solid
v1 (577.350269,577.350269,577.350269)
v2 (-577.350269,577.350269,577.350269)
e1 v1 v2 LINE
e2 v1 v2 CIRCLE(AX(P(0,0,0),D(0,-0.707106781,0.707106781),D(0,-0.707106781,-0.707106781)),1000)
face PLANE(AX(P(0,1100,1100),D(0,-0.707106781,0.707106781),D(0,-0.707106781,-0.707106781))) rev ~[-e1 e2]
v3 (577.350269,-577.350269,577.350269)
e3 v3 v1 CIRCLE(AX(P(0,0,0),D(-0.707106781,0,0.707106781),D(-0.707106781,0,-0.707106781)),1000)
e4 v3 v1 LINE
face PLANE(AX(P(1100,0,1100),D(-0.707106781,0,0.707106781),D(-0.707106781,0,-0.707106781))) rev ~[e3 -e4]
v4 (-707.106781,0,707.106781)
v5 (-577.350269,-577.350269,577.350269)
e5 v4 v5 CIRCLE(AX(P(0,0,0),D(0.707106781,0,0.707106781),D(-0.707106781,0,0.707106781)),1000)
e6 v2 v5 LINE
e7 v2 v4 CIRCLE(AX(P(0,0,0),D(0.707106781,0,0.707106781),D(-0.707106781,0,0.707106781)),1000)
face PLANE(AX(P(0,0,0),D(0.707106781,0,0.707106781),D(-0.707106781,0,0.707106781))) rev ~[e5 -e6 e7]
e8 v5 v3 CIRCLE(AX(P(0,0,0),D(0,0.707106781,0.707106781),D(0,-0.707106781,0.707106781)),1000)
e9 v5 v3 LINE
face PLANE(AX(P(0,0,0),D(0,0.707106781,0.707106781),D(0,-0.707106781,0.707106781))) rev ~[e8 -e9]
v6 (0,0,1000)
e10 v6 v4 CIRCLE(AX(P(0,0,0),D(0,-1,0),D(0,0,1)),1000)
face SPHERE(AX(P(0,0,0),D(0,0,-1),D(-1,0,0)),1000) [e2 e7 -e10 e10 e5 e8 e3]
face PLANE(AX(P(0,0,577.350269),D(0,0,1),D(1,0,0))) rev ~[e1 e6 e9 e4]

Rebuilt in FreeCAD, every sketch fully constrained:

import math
import FreeCAD as App
import Part
import Sketcher
from FreeCAD import Vector
Q = App.Units.Quantity


def add_polygon(sketch, points):
    """Adds a closed chain of lines whose ends are joined by coincident constraints."""
    first, n = sketch.GeometryCount, len(points)
    for a, b in zip(points, points[1:] + points[:1]):
        sketch.addGeometry(Part.LineSegment(App.Vector(*a, 0), App.Vector(*b, 0)), False)
    for i in range(n):
        sketch.addConstraint(Sketcher.Constraint("Coincident", first + i, 2, first + (i + 1) % n, 1))

doc = App.newDocument("Part")
body = doc.addObject("PartDesign::Body", "Body")

sketch1 = doc.addObject("Sketcher::SketchObject", "Sketch")
body.addObject(sketch1)
sketch1.AttachmentSupport = (doc.XZ_Plane, [""])
sketch1.MapMode = "FlatFace"
sketch1.addGeometry(Part.LineSegment(Vector(0, -1000, 0), Vector(0, 1000, 0)), False)
sketch1.addGeometry(Part.ArcOfCircle(Part.Circle(Vector(0, 0, 0), Vector(0, 0, 1), 1000), math.radians(90), math.radians(270)), False)
sketch1.addConstraint(Sketcher.Constraint("Coincident", 0, 1, 1, 2))
sketch1.addConstraint(Sketcher.Constraint("Coincident", 1, 1, 0, 2))
sketch1.addConstraint(Sketcher.Constraint("Vertical", 0))
sketch1.addConstraint(Sketcher.Constraint("Coincident", 1, 3, -1, 1))
sketch1.addConstraint(Sketcher.Constraint("PointOnObject", 0, 1, -2))
sketch1.addConstraint(Sketcher.Constraint("Radius", 1, Q("1000 mm")))
revolution = doc.addObject("PartDesign::Revolution", "Revolution")
body.addObject(revolution)
revolution.Profile = sketch1
revolution.ReferenceAxis = (sketch1, ["V_Axis"])
revolution.Angle = 360

sketch2 = doc.addObject("Sketcher::SketchObject", "Sketch001")
body.addObject(sketch2)
sketch2.AttachmentSupport = (doc.XZ_Plane, [""])
sketch2.MapMode = "FlatFace"
add_polygon(sketch2, [(0, 0), (-1100, 1100), (-1100, -1100), (1100, -1100), (1100, 1100)])
sketch2.addConstraint(Sketcher.Constraint("Vertical", 1))
sketch2.addConstraint(Sketcher.Constraint("Horizontal", 2))
sketch2.addConstraint(Sketcher.Constraint("Vertical", 3))
sketch2.addConstraint(Sketcher.Constraint("Coincident", 4, 2, -1, 1))
sketch2.addConstraint(Sketcher.Constraint("Symmetric", 0, 2, 2, 2, -1, 1))
sketch2.addConstraint(Sketcher.Constraint("Perpendicular", 0, 4))
sketch2.addConstraint(Sketcher.Constraint("Horizontal", 0, 2, 3, 2))
sketch2.addConstraint(Sketcher.Constraint("DistanceX", 2, 1, 2, 2, Q("2200 mm")))
pocket1 = doc.addObject("PartDesign::Pocket", "Pocket")
body.addObject(pocket1)
pocket1.Profile = sketch2
pocket1.Length = 2200
pocket1.Midplane = True

sketch3 = doc.addObject("Sketcher::SketchObject", "Sketch002")
body.addObject(sketch3)
sketch3.AttachmentSupport = (doc.YZ_Plane, [""])
sketch3.MapMode = "FlatFace"
add_polygon(sketch3, [(0, 0), (-1100, 1100), (-1100, -1100), (1100, -1100), (1100, 1100)])
sketch3.addConstraint(Sketcher.Constraint("Vertical", 1))
sketch3.addConstraint(Sketcher.Constraint("Horizontal", 2))
sketch3.addConstraint(Sketcher.Constraint("Vertical", 3))
sketch3.addConstraint(Sketcher.Constraint("Coincident", 4, 2, -1, 1))
sketch3.addConstraint(Sketcher.Constraint("Symmetric", 0, 2, 2, 2, -1, 1))
sketch3.addConstraint(Sketcher.Constraint("Perpendicular", 0, 4))
sketch3.addConstraint(Sketcher.Constraint("Horizontal", 0, 2, 3, 2))
sketch3.addConstraint(Sketcher.Constraint("DistanceX", 2, 1, 2, 2, Q("2200 mm")))
pocket2 = doc.addObject("PartDesign::Pocket", "Pocket001")
body.addObject(pocket2)
pocket2.Profile = sketch3
pocket2.Length = 2200
pocket2.Midplane = True

sketch4 = doc.addObject("Sketcher::SketchObject", "Sketch003")
body.addObject(sketch4)
sketch4.AttachmentSupport = (doc.XY_Plane, [""])
sketch4.MapMode = "FlatFace"
sketch4.addGeometry(Part.Circle(Vector(0, 0, 0), Vector(0, 0, 1), 1000), False)
sketch4.addConstraint(Sketcher.Constraint("Coincident", 0, 3, -1, 1))
sketch4.addConstraint(Sketcher.Constraint("Diameter", 0, Q("2000 mm")))
pocket3 = doc.addObject("PartDesign::Pocket", "Pocket002")
body.addObject(pocket3)
pocket3.Profile = sketch4
pocket3.Length = 577.350269
pocket3.Reversed = True

doc.recompute()
